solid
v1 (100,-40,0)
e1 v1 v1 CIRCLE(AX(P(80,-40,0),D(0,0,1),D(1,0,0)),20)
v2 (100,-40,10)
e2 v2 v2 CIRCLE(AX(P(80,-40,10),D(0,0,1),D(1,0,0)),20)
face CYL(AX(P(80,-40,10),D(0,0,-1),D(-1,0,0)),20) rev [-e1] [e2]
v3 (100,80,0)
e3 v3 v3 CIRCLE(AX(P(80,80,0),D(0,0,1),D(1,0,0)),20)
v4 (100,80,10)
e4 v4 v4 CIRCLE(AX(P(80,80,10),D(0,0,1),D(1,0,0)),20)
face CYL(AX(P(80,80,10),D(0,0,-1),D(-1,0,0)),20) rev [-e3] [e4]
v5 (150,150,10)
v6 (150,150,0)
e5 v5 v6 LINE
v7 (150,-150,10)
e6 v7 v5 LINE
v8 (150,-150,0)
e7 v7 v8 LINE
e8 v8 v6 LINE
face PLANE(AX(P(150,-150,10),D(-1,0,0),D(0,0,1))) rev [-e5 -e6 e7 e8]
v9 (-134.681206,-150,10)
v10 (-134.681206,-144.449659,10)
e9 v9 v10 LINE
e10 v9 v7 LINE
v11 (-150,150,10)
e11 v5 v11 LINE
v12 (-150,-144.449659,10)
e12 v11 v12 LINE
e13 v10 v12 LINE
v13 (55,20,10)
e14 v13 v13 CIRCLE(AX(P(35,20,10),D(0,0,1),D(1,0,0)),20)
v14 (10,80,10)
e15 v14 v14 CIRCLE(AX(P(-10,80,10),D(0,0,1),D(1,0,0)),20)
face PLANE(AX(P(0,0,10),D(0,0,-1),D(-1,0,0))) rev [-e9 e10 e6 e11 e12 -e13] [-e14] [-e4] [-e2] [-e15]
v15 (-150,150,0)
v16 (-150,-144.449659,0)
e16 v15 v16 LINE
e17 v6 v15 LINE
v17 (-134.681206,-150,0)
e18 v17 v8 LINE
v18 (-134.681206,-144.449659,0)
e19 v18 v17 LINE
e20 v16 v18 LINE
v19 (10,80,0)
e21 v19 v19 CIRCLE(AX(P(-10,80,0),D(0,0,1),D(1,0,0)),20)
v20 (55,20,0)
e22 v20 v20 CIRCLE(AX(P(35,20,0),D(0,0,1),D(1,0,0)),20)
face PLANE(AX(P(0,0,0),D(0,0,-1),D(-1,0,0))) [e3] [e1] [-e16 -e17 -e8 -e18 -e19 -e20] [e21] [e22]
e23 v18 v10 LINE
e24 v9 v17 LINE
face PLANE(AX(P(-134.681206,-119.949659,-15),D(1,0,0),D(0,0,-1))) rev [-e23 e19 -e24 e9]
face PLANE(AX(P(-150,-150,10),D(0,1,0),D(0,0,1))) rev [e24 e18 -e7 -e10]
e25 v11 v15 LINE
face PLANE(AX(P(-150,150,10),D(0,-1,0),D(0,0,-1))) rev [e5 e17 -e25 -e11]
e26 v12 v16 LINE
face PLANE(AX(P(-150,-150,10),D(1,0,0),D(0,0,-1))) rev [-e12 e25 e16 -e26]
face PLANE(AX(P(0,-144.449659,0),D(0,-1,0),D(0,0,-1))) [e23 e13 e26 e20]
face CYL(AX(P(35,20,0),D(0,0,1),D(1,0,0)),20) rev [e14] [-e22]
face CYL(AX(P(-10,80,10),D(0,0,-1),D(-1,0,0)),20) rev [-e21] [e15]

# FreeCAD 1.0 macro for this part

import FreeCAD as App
import Part
import Sketcher
from FreeCAD import Vector
Q = App.Units.Quantity

doc = App.newDocument("Part")
body = doc.addObject("PartDesign::Body", "Body")

sketch1 = body.newObject("Sketcher::SketchObject", "Sketch")
sketch1.AttachmentSupport = (doc.getObject("XY_Plane"), [""])
sketch1.MapMode = "FlatFace"
sketch1.addGeometry(Part.LineSegment(Vector(-150, 150, 0), Vector(-150, -150, 0)), False)
sketch1.addGeometry(Part.LineSegment(Vector(-150, -150, 0), Vector(150, -150, 0)), False)
sketch1.addGeometry(Part.LineSegment(Vector(150, -150, 0), Vector(150, 150, 0)), False)
sketch1.addGeometry(Part.LineSegment(Vector(150, 150, 0), Vector(-150, 150, 0)), False)
sketch1.addConstraint(Sketcher.Constraint("Coincident", 0, 2, 1, 1))
sketch1.addConstraint(Sketcher.Constraint("Coincident", 1, 2, 2, 1))
sketch1.addConstraint(Sketcher.Constraint("Coincident", 2, 2, 3, 1))
sketch1.addConstraint(Sketcher.Constraint("Coincident", 3, 2, 0, 1))
sketch1.addConstraint(Sketcher.Constraint("Vertical", 0))
sketch1.addConstraint(Sketcher.Constraint("Horizontal", 1))
sketch1.addConstraint(Sketcher.Constraint("Vertical", 2))
sketch1.addConstraint(Sketcher.Constraint("Horizontal", 3))
sketch1.addConstraint(Sketcher.Constraint("Symmetric", 0, 2, 2, 2, -1, 1))
sketch1.addConstraint(Sketcher.Constraint("Equal", 3, 0))
sketch1.addConstraint(Sketcher.Constraint("DistanceX", 1, 1, 1, 2, Q("300 mm")))
pad1 = body.newObject("PartDesign::Pad", "Pad")
pad1.Profile = sketch1
pad1.Length = 10

sketch2 = body.newObject("Sketcher::SketchObject", "Sketch001")
sketch2.AttachmentSupport = (doc.getObject("XY_Plane"), [""])
sketch2.MapMode = "FlatFace"
sketch2.AttachmentOffset = App.Placement(Vector(0, 0, 10), App.Rotation())
sketch2.addGeometry(Part.Circle(Vector(35, 20, 0), Vector(0, 0, 1), 20), False)
sketch2.addConstraint(Sketcher.Constraint("Diameter", 0, Q("40 mm")))
sketch2.addConstraint(Sketcher.Constraint("DistanceX", -1, 1, 0, 3, Q("35 mm")))
sketch2.addConstraint(Sketcher.Constraint("DistanceY", -1, 1, 0, 3, Q("20 mm")))
pocket1 = body.newObject("PartDesign::Pocket", "Pocket")
pocket1.Profile = sketch2
pocket1.Type = "ThroughAll"

sketch3 = body.newObject("Sketcher::SketchObject", "Sketch002")
sketch3.AttachmentSupport = (doc.getObject("XY_Plane"), [""])
sketch3.MapMode = "FlatFace"
sketch3.addGeometry(Part.Circle(Vector(80, 80, 0), Vector(0, 0, 1), 20), False)
sketch3.addGeometry(Part.Circle(Vector(80, -40, 0), Vector(0, 0, 1), 20), False)
sketch3.addGeometry(Part.Circle(Vector(-10, 80, 0), Vector(0, 0, 1), 20), False)
sketch3.addConstraint(Sketcher.Constraint("Equal", 0, 1))
sketch3.addConstraint(Sketcher.Constraint("Equal", 1, 2))
sketch3.addConstraint(Sketcher.Constraint("Horizontal", 0, 3, 2, 3))
sketch3.addConstraint(Sketcher.Constraint("Vertical", 0, 3, 1, 3))
sketch3.addConstraint(Sketcher.Constraint("Diameter", 0, Q("40 mm")))
sketch3.addConstraint(Sketcher.Constraint("DistanceX", -1, 1, 0, 3, Q("80 mm")))
sketch3.addConstraint(Sketcher.Constraint("DistanceY", -1, 1, 0, 3, Q("80 mm")))
sketch3.addConstraint(Sketcher.Constraint("DistanceY", 1, 3, -1, 1, Q("40 mm")))
sketch3.addConstraint(Sketcher.Constraint("DistanceX", 2, 3, -1, 1, Q("10 mm")))
pocket2 = body.newObject("PartDesign::Pocket", "Pocket001")
pocket2.Profile = sketch3
pocket2.Length = 10
pocket2.Reversed = True

sketch4 = body.newObject("Sketcher::SketchObject", "Sketch003")
sketch4.AttachmentSupport = (doc.getObject("XY_Plane"), [""])
sketch4.MapMode = "FlatFace"
sketch4.AttachmentOffset = App.Placement(Vector(0, 0, 10), App.Rotation())
sketch4.addGeometry(Part.LineSegment(Vector(-170, -120, 0), Vector(-170, -155, 0)), False)
sketch4.addGeometry(Part.LineSegment(Vector(-170, -155, 0), Vector(-135, -155, 0)), False)
sketch4.addGeometry(Part.LineSegment(Vector(-135, -155, 0), Vector(-135, -120, 0)), False)
sketch4.addGeometry(Part.LineSegment(Vector(-135, -120, 0), Vector(-170, -120, 0)), False)
sketch4.addConstraint(Sketcher.Constraint("Coincident", 0, 2, 1, 1))
sketch4.addConstraint(Sketcher.Constraint("Coincident", 1, 2, 2, 1))
sketch4.addConstraint(Sketcher.Constraint("Coincident", 2, 2, 3, 1))
sketch4.addConstraint(Sketcher.Constraint("Coincident", 3, 2, 0, 1))
sketch4.addConstraint(Sketcher.Constraint("Vertical", 0))
sketch4.addConstraint(Sketcher.Constraint("Horizontal", 1))
sketch4.addConstraint(Sketcher.Constraint("Vertical", 2))
sketch4.addConstraint(Sketcher.Constraint("Horizontal", 3))
sketch4.addConstraint(Sketcher.Constraint("DistanceX", 1, 1, 1, 2, Q("35.387589 mm")))
sketch4.addConstraint(Sketcher.Constraint("DistanceY", 0, 2, 0, 1, Q("35.350682 mm")))
sketch4.addConstraint(Sketcher.Constraint("DistanceY", 0, 2, -1, 1, Q("155.300341 mm")))
sketch4.addConstraint(Sketcher.Constraint("DistanceX", 0, 2, -1, 1, Q("170.068794 mm")))
pocket3 = body.newObject("PartDesign::Pocket", "Pocket002")
pocket3.Profile = sketch4
pocket3.Length = 25

sketch5 = body.newObject("Sketcher::SketchObject", "Sketch004")
sketch5.AttachmentSupport = (doc.getObject("XZ_Plane"), [""])
sketch5.MapMode = "FlatFace"
sketch5.AttachmentOffset = App.Placement(Vector(0, 0, 119.949659), App.Rotation())
sketch5.addGeometry(Part.LineSegment(Vector(-150, 10, 0), Vector(-150, 0, 0)), False)
sketch5.addGeometry(Part.LineSegment(Vector(-150, 0, 0), Vector(-135, 0, 0)), False)
sketch5.addGeometry(Part.LineSegment(Vector(-135, 0, 0), Vector(-135, 10, 0)), False)
sketch5.addGeometry(Part.LineSegment(Vector(-135, 10, 0), Vector(-150, 10, 0)), False)
sketch5.addConstraint(Sketcher.Constraint("Coincident", 0, 2, 1, 1))
sketch5.addConstraint(Sketcher.Constraint("Coincident", 1, 2, 2, 1))
sketch5.addConstraint(Sketcher.Constraint("Coincident", 2, 2, 3, 1))
sketch5.addConstraint(Sketcher.Constraint("Coincident", 3, 2, 0, 1))
sketch5.addConstraint(Sketcher.Constraint("Vertical", 0))
sketch5.addConstraint(Sketcher.Constraint("Horizontal", 1))
sketch5.addConstraint(Sketcher.Constraint("Vertical", 2))
sketch5.addConstraint(Sketcher.Constraint("Horizontal", 3))
sketch5.addConstraint(Sketcher.Constraint("PointOnObject", 0, 2, -1))
sketch5.addConstraint(Sketcher.Constraint("DistanceY", 0, 2, 0, 1, Q("10 mm")))
sketch5.addConstraint(Sketcher.Constraint("DistanceX", 0, 2, -1, 1, Q("150 mm")))
sketch5.addConstraint(Sketcher.Constraint("DistanceX", 1, 1, 1, 2, Q("15.318794 mm")))
pad2 = body.newObject("PartDesign::Pad", "Pad001")
pad2.Profile = sketch5
pad2.Length = 24.5

doc.recompute()
